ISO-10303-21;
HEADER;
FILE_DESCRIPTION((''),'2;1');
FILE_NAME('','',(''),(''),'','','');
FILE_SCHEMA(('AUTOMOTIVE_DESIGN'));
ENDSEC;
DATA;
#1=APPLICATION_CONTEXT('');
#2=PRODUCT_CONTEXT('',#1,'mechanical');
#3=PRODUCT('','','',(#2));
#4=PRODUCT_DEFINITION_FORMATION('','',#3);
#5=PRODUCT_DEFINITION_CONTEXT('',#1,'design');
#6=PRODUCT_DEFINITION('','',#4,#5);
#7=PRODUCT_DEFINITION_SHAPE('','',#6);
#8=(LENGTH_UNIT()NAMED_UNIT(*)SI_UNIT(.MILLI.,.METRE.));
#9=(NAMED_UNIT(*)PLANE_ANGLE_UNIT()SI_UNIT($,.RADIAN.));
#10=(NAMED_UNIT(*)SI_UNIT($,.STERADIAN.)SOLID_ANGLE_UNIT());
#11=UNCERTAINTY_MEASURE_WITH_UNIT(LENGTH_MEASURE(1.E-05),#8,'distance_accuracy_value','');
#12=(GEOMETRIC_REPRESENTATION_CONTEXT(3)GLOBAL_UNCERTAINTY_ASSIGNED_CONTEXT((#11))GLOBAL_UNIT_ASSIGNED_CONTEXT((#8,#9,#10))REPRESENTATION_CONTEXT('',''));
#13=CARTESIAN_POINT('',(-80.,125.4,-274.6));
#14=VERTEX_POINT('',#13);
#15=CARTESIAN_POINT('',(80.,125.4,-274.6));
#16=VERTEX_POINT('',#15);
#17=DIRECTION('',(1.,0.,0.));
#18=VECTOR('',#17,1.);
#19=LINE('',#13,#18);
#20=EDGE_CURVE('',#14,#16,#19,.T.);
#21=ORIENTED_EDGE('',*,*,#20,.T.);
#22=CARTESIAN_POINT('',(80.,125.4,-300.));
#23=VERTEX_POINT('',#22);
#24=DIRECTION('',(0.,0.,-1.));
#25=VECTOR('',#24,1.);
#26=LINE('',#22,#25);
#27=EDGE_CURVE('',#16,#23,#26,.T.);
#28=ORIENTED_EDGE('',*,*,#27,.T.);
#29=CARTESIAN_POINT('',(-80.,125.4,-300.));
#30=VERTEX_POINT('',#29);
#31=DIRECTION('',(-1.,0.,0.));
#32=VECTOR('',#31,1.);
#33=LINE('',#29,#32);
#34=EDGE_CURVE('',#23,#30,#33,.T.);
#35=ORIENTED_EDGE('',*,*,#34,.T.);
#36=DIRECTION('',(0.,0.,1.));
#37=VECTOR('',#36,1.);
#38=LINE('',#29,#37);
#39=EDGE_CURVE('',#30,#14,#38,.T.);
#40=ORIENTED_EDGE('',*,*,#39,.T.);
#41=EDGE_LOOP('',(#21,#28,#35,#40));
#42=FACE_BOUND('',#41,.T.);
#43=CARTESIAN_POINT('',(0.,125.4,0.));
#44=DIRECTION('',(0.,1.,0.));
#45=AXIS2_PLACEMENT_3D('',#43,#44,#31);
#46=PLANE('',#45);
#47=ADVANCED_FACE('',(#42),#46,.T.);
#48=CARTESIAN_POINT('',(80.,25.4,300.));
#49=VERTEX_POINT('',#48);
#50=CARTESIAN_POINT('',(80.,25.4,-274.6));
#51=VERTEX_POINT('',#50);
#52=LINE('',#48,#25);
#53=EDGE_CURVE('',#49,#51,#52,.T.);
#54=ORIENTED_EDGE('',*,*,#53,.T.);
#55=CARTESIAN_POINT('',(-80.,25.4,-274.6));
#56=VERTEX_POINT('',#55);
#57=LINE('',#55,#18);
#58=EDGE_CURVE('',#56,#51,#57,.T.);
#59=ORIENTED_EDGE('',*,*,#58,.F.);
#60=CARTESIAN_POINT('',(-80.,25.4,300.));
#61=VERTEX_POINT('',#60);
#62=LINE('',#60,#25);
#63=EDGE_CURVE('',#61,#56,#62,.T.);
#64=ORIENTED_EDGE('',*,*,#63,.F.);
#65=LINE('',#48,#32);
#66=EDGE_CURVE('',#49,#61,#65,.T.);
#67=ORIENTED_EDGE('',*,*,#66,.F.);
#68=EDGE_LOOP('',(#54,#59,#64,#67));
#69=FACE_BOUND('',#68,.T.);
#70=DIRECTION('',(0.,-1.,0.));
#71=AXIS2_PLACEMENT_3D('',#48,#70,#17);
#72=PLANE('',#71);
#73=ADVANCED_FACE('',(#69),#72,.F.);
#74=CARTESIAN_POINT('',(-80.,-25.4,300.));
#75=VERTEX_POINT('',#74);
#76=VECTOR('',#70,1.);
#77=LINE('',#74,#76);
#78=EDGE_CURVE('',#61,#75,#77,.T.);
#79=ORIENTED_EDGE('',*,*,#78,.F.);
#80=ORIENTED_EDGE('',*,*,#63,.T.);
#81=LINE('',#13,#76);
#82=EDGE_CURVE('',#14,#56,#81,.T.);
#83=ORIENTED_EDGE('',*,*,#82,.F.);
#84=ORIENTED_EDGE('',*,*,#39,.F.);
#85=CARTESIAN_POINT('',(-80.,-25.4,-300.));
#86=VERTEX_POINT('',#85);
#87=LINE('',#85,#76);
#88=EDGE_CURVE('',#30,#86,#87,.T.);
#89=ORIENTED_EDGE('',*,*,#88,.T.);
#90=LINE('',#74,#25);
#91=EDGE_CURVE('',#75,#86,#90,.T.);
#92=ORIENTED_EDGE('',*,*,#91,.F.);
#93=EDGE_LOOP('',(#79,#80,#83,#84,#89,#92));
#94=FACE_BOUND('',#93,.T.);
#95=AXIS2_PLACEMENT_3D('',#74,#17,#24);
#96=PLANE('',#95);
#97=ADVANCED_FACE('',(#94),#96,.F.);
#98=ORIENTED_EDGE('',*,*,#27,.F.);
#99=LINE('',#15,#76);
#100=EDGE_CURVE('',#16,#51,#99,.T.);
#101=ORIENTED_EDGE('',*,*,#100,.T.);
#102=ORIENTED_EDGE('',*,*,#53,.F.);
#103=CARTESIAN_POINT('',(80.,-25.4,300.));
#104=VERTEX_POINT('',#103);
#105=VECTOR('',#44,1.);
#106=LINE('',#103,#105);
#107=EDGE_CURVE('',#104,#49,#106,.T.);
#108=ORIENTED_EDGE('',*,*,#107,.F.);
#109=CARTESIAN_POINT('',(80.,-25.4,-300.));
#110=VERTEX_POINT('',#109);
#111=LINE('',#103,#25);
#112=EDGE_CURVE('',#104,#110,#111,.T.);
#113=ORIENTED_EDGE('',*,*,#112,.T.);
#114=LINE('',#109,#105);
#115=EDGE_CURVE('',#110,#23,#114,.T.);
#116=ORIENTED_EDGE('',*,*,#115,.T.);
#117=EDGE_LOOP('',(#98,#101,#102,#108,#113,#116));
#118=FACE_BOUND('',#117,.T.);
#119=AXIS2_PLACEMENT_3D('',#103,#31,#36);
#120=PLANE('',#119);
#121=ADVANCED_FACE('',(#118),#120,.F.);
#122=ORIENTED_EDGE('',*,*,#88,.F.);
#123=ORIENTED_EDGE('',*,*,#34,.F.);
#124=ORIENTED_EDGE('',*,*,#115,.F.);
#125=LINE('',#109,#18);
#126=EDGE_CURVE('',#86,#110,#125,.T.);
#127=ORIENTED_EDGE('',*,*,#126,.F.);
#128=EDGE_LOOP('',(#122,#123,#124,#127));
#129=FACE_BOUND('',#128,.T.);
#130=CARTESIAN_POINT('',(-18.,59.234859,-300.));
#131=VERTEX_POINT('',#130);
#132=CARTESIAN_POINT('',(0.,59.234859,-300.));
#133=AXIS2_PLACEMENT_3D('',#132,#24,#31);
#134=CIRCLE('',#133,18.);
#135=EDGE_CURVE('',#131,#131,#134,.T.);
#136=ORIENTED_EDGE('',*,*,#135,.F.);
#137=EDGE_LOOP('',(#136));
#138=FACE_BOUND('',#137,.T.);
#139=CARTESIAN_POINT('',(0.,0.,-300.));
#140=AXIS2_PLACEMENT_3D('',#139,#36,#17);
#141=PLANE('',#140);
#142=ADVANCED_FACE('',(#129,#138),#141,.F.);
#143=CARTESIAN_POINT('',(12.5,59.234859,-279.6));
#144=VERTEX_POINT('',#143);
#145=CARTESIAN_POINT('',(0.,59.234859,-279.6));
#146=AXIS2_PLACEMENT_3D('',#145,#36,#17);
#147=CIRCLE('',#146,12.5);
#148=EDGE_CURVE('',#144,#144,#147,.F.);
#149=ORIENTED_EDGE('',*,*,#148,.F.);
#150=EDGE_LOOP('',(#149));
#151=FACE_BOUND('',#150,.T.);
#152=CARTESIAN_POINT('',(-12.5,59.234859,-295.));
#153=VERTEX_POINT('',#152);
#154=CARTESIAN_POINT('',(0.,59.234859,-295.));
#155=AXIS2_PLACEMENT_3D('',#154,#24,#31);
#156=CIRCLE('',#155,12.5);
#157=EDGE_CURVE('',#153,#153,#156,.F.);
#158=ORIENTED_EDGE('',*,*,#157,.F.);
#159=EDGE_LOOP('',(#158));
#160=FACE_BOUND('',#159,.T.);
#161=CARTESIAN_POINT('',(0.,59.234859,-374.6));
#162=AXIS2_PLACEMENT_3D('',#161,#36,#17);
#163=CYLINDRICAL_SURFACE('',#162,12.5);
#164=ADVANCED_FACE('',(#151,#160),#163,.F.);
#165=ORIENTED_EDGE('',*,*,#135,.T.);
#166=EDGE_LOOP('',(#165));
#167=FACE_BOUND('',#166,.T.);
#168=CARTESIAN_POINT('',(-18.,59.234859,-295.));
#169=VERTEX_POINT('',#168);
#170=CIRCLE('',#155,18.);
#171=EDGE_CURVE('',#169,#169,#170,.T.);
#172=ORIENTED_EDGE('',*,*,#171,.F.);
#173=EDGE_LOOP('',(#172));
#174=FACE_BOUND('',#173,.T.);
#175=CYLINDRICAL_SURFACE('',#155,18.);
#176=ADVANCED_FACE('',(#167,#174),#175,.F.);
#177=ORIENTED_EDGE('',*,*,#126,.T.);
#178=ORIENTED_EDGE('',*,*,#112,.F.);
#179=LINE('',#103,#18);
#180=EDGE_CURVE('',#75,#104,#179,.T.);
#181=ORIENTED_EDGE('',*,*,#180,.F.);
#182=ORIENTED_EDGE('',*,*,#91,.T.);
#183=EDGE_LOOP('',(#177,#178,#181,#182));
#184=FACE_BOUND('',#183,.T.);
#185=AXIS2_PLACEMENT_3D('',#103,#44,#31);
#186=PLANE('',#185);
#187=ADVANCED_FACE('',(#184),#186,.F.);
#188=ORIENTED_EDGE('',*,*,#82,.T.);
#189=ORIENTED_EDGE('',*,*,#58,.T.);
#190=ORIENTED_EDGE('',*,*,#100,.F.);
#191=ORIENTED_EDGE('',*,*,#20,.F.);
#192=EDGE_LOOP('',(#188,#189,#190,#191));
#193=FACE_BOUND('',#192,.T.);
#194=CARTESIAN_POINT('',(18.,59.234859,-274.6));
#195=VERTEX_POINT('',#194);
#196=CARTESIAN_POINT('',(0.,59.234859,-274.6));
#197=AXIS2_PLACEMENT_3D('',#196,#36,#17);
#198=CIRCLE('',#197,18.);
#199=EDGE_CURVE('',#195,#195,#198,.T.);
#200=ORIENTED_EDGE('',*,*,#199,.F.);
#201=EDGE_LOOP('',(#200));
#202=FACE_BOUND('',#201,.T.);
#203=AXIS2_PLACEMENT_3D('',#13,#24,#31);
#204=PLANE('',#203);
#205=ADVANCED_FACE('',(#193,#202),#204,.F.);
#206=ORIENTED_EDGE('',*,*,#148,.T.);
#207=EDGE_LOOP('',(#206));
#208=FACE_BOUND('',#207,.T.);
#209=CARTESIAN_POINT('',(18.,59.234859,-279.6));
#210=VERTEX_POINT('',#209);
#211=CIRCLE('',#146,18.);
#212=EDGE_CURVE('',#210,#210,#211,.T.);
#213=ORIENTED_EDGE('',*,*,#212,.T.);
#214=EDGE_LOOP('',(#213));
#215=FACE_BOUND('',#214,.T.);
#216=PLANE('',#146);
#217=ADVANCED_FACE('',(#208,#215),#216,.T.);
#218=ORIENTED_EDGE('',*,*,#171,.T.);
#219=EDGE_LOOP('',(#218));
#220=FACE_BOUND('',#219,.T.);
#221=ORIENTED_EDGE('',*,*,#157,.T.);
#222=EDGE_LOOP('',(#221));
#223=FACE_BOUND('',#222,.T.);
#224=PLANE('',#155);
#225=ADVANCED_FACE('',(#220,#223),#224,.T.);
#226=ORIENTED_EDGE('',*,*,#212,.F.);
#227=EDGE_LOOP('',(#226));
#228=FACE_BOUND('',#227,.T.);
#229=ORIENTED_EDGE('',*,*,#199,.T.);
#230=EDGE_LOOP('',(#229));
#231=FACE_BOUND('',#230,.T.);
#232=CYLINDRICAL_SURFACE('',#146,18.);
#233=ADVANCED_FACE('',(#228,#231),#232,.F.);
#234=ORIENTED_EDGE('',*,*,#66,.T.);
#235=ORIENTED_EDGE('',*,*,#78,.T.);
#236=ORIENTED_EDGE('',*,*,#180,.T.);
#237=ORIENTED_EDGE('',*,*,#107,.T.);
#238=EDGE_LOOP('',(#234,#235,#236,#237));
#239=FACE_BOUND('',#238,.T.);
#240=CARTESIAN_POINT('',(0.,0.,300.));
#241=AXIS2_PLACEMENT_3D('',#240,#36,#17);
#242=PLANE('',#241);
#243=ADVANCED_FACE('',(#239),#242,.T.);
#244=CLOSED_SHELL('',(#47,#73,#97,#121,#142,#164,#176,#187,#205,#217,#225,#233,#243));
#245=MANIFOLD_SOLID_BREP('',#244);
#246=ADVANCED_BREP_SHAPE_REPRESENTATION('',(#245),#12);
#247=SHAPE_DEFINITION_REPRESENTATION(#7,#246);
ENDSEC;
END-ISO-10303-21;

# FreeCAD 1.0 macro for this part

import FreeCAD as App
import Part
import Sketcher

V = App.Vector
Q = App.Units.Quantity

doc = App.newDocument("Part")
body = doc.addObject("PartDesign::Body", "Body")

# Sketch on XY plane
sketch1 = body.newObject("Sketcher::SketchObject", "Sketch")
sketch1.AttachmentSupport = (doc.getObject("XY_Plane"), [""])
sketch1.MapMode = "FlatFace"
sketch1.addGeometry(Part.LineSegment(V(-80, 25, 0), V(-80, -25, 0)), False)
sketch1.addGeometry(Part.LineSegment(V(-80, -25, 0), V(80, -25, 0)), False)
sketch1.addGeometry(Part.LineSegment(V(80, -25, 0), V(80, 25, 0)), False)
sketch1.addGeometry(Part.LineSegment(V(80, 25, 0), V(-80, 25, 0)), False)
sketch1.addConstraint(Sketcher.Constraint("Coincident", 0, 2, 1, 1))
sketch1.addConstraint(Sketcher.Constraint("Coincident", 1, 2, 2, 1))
sketch1.addConstraint(Sketcher.Constraint("Coincident", 2, 2, 3, 1))
sketch1.addConstraint(Sketcher.Constraint("Coincident", 3, 2, 0, 1))
sketch1.addConstraint(Sketcher.Constraint("Vertical", 0))
sketch1.addConstraint(Sketcher.Constraint("Horizontal", 1))
sketch1.addConstraint(Sketcher.Constraint("Vertical", 2))
sketch1.addConstraint(Sketcher.Constraint("Horizontal", 3))
sketch1.addConstraint(Sketcher.Constraint("Symmetric", 0, 2, 2, 2, -1, 1))
sketch1.addConstraint(Sketcher.Constraint("DistanceX", 1, 1, 1, 2, Q("160 mm")))
sketch1.addConstraint(Sketcher.Constraint("DistanceY", 0, 2, 0, 1, Q("50.8 mm")))
pad1 = body.newObject("PartDesign::Pad", "Pad")
pad1.Profile = sketch1
pad1.Length = 600
pad1.Midplane = True

# Sketch on XZ plane
sketch2 = body.newObject("Sketcher::SketchObject", "Sketch001")
sketch2.AttachmentSupport = (doc.getObject("XZ_Plane"), [""])
sketch2.MapMode = "FlatFace"
sketch2.AttachmentOffset = App.Placement(V(0, 0, -25.4), App.Rotation())
sketch2.addGeometry(Part.LineSegment(V(-80, -300, 0), V(-80, -275, 0)), False)
sketch2.addGeometry(Part.LineSegment(V(-80, -275, 0), V(80, -275, 0)), False)
sketch2.addGeometry(Part.LineSegment(V(80, -275, 0), V(80, -300, 0)), False)
sketch2.addGeometry(Part.LineSegment(V(80, -300, 0), V(-80, -300, 0)), False)
sketch2.addConstraint(Sketcher.Constraint("Coincident", 0, 2, 1, 1))
sketch2.addConstraint(Sketcher.Constraint("Coincident", 1, 2, 2, 1))
sketch2.addConstraint(Sketcher.Constraint("Coincident", 2, 2, 3, 1))
sketch2.addConstraint(Sketcher.Constraint("Coincident", 3, 2, 0, 1))
sketch2.addConstraint(Sketcher.Constraint("Vertical", 0))
sketch2.addConstraint(Sketcher.Constraint("Horizontal", 1))
sketch2.addConstraint(Sketcher.Constraint("Vertical", 2))
sketch2.addConstraint(Sketcher.Constraint("Horizontal", 3))
sketch2.addConstraint(Sketcher.Constraint("DistanceX", 1, 1, 1, 2, Q("160 mm")))
sketch2.addConstraint(Sketcher.Constraint("DistanceY", 0, 1, 0, 2, Q("25.4 mm")))
sketch2.addConstraint(Sketcher.Constraint("DistanceX", 0, 2, -1, 1, Q("80 mm")))
sketch2.addConstraint(Sketcher.Constraint("DistanceY", 2, 2, -1, 1, Q("300 mm")))
pad2 = body.newObject("PartDesign::Pad", "Pad001")
pad2.Profile = sketch2
pad2.Length = 100
pad2.Reversed = True

# Sketch on XY plane
sketch3 = body.newObject("Sketcher::SketchObject", "Sketch002")
sketch3.AttachmentSupport = (doc.getObject("XY_Plane"), [""])
sketch3.MapMode = "FlatFace"
sketch3.AttachmentOffset = App.Placement(V(0, 0, -274.6), App.Rotation())
sketch3.addGeometry(Part.Circle(V(0, 59, 0), V(0, 0, 1), 12), False)
sketch3.addConstraint(Sketcher.Constraint("PointOnObject", 0, 3, -2))
sketch3.addConstraint(Sketcher.Constraint("Diameter", 0, Q("25 mm")))
sketch3.addConstraint(Sketcher.Constraint("DistanceY", -1, 1, 0, 3, Q("59.234859 mm")))
pocket1 = body.newObject("PartDesign::Pocket", "Pocket")
pocket1.Profile = sketch3
pocket1.Length = 100

# Sketch on XY plane
sketch4 = body.newObject("Sketcher::SketchObject", "Sketch003")
sketch4.AttachmentSupport = (doc.getObject("XY_Plane"), [""])
sketch4.MapMode = "FlatFace"
sketch4.AttachmentOffset = App.Placement(V(0, 0, -274.6), App.Rotation())
sketch4.addGeometry(Part.Circle(V(0, 59, 0), V(0, 0, 1), 18), False)
sketch4.addConstraint(Sketcher.Constraint("PointOnObject", 0, 3, -2))
sketch4.addConstraint(Sketcher.Constraint("Diameter", 0, Q("36 mm")))
sketch4.addConstraint(Sketcher.Constraint("DistanceY", -1, 1, 0, 3, Q("59.234859 mm")))
pocket2 = body.newObject("PartDesign::Pocket", "Pocket001")
pocket2.Profile = sketch4
pocket2.Length = 5

# Sketch on XY plane
sketch5 = body.newObject("Sketcher::SketchObject", "Sketch004")
sketch5.AttachmentSupport = (doc.getObject("XY_Plane"), [""])
sketch5.MapMode = "FlatFace"
sketch5.AttachmentOffset = App.Placement(V(0, 0, -295), App.Rotation())
sketch5.addGeometry(Part.Circle(V(0, 59, 0), V(0, 0, 1), 18), False)
sketch5.addConstraint(Sketcher.Constraint("PointOnObject", 0, 3, -2))
sketch5.addConstraint(Sketcher.Constraint("Diameter", 0, Q("36 mm")))
sketch5.addConstraint(Sketcher.Constraint("DistanceY", -1, 1, 0, 3, Q("59.234859 mm")))
pocket3 = body.newObject("PartDesign::Pocket", "Pocket002")
pocket3.Profile = sketch5
pocket3.Length = 5

doc.recompute()
